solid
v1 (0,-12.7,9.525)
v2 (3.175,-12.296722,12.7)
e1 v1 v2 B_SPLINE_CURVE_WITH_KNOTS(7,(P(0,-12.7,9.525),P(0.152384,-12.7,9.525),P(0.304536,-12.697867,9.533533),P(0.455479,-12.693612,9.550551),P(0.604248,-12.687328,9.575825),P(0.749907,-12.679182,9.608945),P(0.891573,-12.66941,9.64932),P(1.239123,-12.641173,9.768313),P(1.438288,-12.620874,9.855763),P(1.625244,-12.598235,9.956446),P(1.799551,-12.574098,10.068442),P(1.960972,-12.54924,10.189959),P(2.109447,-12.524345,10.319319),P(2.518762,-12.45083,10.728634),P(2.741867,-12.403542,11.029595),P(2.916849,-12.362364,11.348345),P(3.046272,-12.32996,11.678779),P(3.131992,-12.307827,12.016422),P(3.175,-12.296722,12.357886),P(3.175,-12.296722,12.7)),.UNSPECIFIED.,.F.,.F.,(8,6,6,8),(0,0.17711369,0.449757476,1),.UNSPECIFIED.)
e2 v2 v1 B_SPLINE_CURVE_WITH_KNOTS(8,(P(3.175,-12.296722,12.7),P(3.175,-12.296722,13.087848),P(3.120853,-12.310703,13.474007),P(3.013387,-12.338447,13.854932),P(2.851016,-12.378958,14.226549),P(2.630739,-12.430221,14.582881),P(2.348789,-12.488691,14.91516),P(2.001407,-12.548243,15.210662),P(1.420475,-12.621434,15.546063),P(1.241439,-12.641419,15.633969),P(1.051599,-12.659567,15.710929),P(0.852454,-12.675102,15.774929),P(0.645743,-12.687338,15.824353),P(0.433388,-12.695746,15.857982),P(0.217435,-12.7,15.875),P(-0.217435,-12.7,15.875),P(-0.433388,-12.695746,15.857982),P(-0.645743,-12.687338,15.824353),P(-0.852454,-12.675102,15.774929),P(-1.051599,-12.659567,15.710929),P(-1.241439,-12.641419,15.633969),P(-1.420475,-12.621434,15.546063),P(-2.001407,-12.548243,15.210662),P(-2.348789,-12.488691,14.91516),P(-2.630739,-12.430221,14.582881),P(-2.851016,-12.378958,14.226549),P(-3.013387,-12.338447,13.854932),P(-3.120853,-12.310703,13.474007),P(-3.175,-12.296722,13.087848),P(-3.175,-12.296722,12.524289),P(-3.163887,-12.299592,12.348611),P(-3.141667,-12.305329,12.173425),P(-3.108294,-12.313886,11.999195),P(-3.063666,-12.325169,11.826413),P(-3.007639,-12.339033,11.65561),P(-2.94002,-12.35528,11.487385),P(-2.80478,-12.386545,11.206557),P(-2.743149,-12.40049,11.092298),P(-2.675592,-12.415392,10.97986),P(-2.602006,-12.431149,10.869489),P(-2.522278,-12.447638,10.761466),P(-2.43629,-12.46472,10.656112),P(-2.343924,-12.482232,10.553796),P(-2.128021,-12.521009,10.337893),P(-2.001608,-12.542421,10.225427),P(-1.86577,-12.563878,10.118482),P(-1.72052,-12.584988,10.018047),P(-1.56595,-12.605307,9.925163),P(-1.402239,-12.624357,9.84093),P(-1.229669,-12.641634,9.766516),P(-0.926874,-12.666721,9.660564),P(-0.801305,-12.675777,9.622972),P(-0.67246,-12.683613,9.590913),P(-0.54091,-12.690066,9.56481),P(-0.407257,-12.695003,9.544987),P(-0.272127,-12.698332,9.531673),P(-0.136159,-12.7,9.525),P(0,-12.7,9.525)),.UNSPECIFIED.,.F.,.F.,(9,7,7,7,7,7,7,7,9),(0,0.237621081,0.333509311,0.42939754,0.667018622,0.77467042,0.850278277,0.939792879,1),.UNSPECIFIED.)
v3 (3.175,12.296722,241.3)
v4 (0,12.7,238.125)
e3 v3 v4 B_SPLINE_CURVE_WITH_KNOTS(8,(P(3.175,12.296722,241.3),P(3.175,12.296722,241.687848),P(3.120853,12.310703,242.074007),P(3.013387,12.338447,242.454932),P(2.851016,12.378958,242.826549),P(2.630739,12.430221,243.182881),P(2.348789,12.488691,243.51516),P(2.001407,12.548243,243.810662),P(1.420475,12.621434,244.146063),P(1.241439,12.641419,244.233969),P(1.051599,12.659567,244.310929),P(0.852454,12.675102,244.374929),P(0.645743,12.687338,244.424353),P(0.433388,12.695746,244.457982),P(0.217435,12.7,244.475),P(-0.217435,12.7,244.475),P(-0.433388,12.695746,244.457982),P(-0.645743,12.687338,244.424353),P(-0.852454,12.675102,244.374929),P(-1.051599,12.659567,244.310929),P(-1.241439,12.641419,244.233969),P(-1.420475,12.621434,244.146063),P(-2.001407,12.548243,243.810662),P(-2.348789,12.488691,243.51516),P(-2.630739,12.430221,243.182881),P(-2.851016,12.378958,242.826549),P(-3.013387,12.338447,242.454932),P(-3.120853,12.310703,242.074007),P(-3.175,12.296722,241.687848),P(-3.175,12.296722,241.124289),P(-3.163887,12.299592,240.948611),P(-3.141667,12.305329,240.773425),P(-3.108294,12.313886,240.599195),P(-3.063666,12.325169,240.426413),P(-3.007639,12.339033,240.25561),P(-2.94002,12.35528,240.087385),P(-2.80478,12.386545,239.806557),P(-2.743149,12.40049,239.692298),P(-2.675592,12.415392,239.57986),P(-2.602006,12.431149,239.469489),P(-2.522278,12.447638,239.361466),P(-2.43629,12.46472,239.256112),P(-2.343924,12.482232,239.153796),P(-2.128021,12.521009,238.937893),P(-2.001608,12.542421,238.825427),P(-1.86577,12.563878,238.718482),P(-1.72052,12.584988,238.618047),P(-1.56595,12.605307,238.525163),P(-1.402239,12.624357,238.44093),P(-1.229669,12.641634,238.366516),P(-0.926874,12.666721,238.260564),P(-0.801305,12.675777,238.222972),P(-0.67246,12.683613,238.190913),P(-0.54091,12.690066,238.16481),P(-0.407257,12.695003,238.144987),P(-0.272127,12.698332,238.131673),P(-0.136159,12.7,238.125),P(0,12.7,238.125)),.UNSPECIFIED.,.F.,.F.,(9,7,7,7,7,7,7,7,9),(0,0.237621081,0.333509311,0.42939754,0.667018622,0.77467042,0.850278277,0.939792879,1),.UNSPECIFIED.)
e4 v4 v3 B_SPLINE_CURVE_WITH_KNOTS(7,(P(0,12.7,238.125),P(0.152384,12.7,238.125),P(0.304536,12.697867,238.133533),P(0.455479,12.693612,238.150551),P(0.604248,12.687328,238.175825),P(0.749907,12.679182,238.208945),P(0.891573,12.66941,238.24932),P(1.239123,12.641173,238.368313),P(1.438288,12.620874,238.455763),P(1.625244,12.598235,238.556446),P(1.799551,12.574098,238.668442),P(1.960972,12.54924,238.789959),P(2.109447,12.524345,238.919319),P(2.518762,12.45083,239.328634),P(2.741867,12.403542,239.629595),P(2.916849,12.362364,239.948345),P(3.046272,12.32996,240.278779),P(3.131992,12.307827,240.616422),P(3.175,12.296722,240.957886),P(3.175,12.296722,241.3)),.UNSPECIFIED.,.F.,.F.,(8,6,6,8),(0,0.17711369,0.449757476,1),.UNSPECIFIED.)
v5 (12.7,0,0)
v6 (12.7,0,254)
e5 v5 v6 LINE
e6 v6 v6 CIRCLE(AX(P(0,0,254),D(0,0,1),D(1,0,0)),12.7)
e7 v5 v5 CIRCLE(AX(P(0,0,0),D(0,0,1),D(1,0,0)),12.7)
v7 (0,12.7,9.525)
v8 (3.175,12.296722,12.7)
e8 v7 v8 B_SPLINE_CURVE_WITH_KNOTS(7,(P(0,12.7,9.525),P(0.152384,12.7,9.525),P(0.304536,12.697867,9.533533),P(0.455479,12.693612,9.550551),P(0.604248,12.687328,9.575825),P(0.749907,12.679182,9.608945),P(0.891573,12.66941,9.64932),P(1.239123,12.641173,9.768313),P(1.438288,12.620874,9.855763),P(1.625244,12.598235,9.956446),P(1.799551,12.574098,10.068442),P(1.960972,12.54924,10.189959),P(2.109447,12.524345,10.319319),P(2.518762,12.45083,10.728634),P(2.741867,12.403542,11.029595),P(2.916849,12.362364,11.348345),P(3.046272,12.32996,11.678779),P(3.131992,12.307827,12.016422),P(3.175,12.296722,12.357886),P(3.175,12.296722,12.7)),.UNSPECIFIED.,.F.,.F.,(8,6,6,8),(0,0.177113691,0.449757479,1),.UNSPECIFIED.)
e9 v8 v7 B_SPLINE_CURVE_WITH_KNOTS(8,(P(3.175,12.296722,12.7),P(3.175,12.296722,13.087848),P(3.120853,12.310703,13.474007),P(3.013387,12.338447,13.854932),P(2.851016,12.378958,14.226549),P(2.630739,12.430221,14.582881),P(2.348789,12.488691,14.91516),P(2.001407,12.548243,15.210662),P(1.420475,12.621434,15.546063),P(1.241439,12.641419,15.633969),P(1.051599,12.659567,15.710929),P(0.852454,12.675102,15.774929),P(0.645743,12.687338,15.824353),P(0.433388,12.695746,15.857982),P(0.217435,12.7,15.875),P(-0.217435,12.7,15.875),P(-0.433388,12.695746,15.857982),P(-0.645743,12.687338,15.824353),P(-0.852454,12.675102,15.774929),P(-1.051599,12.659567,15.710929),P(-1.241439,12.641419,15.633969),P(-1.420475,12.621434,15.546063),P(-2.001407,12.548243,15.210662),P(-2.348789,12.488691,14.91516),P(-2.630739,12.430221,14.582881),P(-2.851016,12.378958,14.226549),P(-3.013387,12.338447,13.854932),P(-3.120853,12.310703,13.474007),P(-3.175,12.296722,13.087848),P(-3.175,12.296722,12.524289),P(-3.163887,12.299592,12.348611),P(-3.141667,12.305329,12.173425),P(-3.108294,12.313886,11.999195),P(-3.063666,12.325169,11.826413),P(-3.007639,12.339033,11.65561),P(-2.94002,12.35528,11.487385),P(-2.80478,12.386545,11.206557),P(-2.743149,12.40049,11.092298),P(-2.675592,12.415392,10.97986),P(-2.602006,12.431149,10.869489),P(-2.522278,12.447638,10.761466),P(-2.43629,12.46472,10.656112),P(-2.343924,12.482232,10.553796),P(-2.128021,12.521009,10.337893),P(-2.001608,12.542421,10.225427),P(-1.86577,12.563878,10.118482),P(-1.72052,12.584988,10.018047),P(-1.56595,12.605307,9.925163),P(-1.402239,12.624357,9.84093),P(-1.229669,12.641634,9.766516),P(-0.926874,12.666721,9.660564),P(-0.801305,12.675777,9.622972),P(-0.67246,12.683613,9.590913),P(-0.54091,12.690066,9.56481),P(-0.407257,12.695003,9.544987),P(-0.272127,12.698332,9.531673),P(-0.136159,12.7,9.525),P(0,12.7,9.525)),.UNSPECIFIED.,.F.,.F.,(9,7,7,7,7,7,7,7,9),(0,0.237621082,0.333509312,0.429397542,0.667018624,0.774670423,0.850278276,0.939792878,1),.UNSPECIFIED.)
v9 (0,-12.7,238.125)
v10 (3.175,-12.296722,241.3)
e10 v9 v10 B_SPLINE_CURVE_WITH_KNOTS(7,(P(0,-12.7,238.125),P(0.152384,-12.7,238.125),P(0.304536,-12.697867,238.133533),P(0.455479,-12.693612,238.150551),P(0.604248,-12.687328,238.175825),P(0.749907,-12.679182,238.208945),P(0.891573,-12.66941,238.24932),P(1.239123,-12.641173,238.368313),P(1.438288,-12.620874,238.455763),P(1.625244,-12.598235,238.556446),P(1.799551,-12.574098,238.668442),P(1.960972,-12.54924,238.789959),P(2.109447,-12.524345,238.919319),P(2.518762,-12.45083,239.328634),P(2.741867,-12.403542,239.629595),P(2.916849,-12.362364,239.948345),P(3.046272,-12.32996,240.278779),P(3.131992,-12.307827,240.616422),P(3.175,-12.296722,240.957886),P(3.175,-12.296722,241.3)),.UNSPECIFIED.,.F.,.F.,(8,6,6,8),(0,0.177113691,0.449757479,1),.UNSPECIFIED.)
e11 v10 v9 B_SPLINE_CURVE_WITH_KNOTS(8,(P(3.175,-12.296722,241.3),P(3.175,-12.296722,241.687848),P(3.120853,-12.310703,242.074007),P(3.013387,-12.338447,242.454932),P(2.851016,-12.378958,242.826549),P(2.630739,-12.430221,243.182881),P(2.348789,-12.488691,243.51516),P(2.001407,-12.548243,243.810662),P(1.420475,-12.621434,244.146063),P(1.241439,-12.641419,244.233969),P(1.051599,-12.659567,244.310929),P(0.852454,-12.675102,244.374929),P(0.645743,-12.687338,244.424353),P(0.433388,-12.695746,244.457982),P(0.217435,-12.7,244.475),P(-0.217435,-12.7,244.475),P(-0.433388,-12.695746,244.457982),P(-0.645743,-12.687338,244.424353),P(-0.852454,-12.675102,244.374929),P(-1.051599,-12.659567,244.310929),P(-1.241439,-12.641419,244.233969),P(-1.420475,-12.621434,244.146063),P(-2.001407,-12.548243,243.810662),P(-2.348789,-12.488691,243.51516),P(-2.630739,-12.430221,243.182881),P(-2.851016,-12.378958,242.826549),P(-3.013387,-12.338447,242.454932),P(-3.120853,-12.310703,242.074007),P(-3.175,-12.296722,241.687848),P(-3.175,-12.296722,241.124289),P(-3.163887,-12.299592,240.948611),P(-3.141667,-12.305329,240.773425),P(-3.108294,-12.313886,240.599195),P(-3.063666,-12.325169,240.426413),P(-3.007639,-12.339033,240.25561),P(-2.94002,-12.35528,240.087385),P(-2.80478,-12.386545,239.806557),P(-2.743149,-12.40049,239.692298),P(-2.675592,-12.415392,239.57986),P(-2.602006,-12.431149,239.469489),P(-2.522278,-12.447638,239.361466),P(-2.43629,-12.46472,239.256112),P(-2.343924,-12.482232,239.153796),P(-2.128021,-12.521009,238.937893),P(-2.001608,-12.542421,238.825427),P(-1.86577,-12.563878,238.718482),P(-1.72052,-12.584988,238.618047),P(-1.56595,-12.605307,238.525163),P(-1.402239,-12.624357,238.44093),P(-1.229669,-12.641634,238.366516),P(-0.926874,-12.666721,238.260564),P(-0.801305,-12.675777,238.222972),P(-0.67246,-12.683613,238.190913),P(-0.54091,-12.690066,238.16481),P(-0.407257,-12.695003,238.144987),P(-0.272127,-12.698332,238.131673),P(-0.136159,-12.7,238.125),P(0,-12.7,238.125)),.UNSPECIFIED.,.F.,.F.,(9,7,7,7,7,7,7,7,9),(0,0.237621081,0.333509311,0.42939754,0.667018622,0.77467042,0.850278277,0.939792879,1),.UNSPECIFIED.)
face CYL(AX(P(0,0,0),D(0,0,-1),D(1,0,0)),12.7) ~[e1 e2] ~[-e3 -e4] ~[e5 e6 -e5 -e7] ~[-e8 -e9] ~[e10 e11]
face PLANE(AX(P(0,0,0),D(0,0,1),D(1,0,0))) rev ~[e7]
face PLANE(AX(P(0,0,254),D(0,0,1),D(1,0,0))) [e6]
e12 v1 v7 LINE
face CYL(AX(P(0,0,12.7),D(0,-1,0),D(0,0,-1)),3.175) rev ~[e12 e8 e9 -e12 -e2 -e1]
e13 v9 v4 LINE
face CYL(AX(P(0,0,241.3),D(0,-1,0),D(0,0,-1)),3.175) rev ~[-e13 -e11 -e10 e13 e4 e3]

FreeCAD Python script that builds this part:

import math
import FreeCAD as App
import Part
import Sketcher
from FreeCAD import Vector
Q = App.Units.Quantity

doc = App.newDocument("Part")
body = doc.addObject("PartDesign::Body", "Body")

# Sketch on XY plane
sketch1 = body.newObject("Sketcher::SketchObject", "Sketch")
sketch1.AttachmentSupport = (doc.getObject("XY_Plane"), [""])
sketch1.MapMode = "FlatFace"
sketch1.addGeometry(Part.Circle(Vector(0, 0, 0), Vector(0, 0, 1), 12.7), False)
sketch1.addConstraint(Sketcher.Constraint("Coincident", 0, 3, -1, 1))
sketch1.addConstraint(Sketcher.Constraint("Diameter", 0, Q("1 in")))
pad1 = body.newObject("PartDesign::Pad", "Pad")
pad1.Profile = sketch1
pad1.Length = Q("10 in")

# Sketch on XZ plane
sketch2 = body.newObject("Sketcher::SketchObject", "Sketch001")
sketch2.AttachmentSupport = (doc.getObject("XZ_Plane"), [""])
sketch2.MapMode = "FlatFace"
sketch2.addGeometry(Part.ArcOfCircle(Part.Circle(Vector(0, 12.7, 0), Vector(0, 0, 1), 3.175), math.radians(-90), math.radians(0)), False)
sketch2.addGeometry(Part.ArcOfCircle(Part.Circle(Vector(0, 12.7, 0), Vector(0, 0, 1), 3.175), math.radians(0), math.radians(270)), False)
sketch2.addConstraint(Sketcher.Constraint("Tangent", 0, 1, 1, 2))
sketch2.addConstraint(Sketcher.Constraint("Coincident", 1, 1, 0, 2))
sketch2.addConstraint(Sketcher.Constraint("PointOnObject", 0, 3, -2))
sketch2.addConstraint(Sketcher.Constraint("PointOnObject", 0, 1, -2))
sketch2.addConstraint(Sketcher.Constraint("Horizontal", 0, 3, 1, 1))
sketch2.addConstraint(Sketcher.Constraint("Radius", 0, Q("0.125 in")))
sketch2.addConstraint(Sketcher.Constraint("DistanceY", -1, 1, 0, 3, Q("0.5 in")))
pocket1 = body.newObject("PartDesign::Pocket", "Pocket")
pocket1.Profile = sketch2
pocket1.Type = "ThroughAll"
pocket1.Midplane = True

# Sketch on XZ plane
sketch3 = body.newObject("Sketcher::SketchObject", "Sketch002")
sketch3.AttachmentSupport = (doc.getObject("XZ_Plane"), [""])
sketch3.MapMode = "FlatFace"
sketch3.addGeometry(Part.ArcOfCircle(Part.Circle(Vector(0, 241.3, 0), Vector(0, 0, 1), 3.175), math.radians(-90), math.radians(0)), False)
sketch3.addGeometry(Part.ArcOfCircle(Part.Circle(Vector(0, 241.3, 0), Vector(0, 0, 1), 3.175), math.radians(0), math.radians(270)), False)
sketch3.addConstraint(Sketcher.Constraint("Tangent", 0, 1, 1, 2))
sketch3.addConstraint(Sketcher.Constraint("Coincident", 1, 1, 0, 2))
sketch3.addConstraint(Sketcher.Constraint("PointOnObject", 0, 3, -2))
sketch3.addConstraint(Sketcher.Constraint("PointOnObject", 0, 1, -2))
sketch3.addConstraint(Sketcher.Constraint("Horizontal", 0, 3, 1, 1))
sketch3.addConstraint(Sketcher.Constraint("Radius", 0, Q("0.125 in")))
sketch3.addConstraint(Sketcher.Constraint("DistanceY", -1, 1, 0, 3, Q("9.5 in")))
pocket2 = body.newObject("PartDesign::Pocket", "Pocket001")
pocket2.Profile = sketch3
pocket2.Type = "ThroughAll"
pocket2.Midplane = True

doc.recompute()
